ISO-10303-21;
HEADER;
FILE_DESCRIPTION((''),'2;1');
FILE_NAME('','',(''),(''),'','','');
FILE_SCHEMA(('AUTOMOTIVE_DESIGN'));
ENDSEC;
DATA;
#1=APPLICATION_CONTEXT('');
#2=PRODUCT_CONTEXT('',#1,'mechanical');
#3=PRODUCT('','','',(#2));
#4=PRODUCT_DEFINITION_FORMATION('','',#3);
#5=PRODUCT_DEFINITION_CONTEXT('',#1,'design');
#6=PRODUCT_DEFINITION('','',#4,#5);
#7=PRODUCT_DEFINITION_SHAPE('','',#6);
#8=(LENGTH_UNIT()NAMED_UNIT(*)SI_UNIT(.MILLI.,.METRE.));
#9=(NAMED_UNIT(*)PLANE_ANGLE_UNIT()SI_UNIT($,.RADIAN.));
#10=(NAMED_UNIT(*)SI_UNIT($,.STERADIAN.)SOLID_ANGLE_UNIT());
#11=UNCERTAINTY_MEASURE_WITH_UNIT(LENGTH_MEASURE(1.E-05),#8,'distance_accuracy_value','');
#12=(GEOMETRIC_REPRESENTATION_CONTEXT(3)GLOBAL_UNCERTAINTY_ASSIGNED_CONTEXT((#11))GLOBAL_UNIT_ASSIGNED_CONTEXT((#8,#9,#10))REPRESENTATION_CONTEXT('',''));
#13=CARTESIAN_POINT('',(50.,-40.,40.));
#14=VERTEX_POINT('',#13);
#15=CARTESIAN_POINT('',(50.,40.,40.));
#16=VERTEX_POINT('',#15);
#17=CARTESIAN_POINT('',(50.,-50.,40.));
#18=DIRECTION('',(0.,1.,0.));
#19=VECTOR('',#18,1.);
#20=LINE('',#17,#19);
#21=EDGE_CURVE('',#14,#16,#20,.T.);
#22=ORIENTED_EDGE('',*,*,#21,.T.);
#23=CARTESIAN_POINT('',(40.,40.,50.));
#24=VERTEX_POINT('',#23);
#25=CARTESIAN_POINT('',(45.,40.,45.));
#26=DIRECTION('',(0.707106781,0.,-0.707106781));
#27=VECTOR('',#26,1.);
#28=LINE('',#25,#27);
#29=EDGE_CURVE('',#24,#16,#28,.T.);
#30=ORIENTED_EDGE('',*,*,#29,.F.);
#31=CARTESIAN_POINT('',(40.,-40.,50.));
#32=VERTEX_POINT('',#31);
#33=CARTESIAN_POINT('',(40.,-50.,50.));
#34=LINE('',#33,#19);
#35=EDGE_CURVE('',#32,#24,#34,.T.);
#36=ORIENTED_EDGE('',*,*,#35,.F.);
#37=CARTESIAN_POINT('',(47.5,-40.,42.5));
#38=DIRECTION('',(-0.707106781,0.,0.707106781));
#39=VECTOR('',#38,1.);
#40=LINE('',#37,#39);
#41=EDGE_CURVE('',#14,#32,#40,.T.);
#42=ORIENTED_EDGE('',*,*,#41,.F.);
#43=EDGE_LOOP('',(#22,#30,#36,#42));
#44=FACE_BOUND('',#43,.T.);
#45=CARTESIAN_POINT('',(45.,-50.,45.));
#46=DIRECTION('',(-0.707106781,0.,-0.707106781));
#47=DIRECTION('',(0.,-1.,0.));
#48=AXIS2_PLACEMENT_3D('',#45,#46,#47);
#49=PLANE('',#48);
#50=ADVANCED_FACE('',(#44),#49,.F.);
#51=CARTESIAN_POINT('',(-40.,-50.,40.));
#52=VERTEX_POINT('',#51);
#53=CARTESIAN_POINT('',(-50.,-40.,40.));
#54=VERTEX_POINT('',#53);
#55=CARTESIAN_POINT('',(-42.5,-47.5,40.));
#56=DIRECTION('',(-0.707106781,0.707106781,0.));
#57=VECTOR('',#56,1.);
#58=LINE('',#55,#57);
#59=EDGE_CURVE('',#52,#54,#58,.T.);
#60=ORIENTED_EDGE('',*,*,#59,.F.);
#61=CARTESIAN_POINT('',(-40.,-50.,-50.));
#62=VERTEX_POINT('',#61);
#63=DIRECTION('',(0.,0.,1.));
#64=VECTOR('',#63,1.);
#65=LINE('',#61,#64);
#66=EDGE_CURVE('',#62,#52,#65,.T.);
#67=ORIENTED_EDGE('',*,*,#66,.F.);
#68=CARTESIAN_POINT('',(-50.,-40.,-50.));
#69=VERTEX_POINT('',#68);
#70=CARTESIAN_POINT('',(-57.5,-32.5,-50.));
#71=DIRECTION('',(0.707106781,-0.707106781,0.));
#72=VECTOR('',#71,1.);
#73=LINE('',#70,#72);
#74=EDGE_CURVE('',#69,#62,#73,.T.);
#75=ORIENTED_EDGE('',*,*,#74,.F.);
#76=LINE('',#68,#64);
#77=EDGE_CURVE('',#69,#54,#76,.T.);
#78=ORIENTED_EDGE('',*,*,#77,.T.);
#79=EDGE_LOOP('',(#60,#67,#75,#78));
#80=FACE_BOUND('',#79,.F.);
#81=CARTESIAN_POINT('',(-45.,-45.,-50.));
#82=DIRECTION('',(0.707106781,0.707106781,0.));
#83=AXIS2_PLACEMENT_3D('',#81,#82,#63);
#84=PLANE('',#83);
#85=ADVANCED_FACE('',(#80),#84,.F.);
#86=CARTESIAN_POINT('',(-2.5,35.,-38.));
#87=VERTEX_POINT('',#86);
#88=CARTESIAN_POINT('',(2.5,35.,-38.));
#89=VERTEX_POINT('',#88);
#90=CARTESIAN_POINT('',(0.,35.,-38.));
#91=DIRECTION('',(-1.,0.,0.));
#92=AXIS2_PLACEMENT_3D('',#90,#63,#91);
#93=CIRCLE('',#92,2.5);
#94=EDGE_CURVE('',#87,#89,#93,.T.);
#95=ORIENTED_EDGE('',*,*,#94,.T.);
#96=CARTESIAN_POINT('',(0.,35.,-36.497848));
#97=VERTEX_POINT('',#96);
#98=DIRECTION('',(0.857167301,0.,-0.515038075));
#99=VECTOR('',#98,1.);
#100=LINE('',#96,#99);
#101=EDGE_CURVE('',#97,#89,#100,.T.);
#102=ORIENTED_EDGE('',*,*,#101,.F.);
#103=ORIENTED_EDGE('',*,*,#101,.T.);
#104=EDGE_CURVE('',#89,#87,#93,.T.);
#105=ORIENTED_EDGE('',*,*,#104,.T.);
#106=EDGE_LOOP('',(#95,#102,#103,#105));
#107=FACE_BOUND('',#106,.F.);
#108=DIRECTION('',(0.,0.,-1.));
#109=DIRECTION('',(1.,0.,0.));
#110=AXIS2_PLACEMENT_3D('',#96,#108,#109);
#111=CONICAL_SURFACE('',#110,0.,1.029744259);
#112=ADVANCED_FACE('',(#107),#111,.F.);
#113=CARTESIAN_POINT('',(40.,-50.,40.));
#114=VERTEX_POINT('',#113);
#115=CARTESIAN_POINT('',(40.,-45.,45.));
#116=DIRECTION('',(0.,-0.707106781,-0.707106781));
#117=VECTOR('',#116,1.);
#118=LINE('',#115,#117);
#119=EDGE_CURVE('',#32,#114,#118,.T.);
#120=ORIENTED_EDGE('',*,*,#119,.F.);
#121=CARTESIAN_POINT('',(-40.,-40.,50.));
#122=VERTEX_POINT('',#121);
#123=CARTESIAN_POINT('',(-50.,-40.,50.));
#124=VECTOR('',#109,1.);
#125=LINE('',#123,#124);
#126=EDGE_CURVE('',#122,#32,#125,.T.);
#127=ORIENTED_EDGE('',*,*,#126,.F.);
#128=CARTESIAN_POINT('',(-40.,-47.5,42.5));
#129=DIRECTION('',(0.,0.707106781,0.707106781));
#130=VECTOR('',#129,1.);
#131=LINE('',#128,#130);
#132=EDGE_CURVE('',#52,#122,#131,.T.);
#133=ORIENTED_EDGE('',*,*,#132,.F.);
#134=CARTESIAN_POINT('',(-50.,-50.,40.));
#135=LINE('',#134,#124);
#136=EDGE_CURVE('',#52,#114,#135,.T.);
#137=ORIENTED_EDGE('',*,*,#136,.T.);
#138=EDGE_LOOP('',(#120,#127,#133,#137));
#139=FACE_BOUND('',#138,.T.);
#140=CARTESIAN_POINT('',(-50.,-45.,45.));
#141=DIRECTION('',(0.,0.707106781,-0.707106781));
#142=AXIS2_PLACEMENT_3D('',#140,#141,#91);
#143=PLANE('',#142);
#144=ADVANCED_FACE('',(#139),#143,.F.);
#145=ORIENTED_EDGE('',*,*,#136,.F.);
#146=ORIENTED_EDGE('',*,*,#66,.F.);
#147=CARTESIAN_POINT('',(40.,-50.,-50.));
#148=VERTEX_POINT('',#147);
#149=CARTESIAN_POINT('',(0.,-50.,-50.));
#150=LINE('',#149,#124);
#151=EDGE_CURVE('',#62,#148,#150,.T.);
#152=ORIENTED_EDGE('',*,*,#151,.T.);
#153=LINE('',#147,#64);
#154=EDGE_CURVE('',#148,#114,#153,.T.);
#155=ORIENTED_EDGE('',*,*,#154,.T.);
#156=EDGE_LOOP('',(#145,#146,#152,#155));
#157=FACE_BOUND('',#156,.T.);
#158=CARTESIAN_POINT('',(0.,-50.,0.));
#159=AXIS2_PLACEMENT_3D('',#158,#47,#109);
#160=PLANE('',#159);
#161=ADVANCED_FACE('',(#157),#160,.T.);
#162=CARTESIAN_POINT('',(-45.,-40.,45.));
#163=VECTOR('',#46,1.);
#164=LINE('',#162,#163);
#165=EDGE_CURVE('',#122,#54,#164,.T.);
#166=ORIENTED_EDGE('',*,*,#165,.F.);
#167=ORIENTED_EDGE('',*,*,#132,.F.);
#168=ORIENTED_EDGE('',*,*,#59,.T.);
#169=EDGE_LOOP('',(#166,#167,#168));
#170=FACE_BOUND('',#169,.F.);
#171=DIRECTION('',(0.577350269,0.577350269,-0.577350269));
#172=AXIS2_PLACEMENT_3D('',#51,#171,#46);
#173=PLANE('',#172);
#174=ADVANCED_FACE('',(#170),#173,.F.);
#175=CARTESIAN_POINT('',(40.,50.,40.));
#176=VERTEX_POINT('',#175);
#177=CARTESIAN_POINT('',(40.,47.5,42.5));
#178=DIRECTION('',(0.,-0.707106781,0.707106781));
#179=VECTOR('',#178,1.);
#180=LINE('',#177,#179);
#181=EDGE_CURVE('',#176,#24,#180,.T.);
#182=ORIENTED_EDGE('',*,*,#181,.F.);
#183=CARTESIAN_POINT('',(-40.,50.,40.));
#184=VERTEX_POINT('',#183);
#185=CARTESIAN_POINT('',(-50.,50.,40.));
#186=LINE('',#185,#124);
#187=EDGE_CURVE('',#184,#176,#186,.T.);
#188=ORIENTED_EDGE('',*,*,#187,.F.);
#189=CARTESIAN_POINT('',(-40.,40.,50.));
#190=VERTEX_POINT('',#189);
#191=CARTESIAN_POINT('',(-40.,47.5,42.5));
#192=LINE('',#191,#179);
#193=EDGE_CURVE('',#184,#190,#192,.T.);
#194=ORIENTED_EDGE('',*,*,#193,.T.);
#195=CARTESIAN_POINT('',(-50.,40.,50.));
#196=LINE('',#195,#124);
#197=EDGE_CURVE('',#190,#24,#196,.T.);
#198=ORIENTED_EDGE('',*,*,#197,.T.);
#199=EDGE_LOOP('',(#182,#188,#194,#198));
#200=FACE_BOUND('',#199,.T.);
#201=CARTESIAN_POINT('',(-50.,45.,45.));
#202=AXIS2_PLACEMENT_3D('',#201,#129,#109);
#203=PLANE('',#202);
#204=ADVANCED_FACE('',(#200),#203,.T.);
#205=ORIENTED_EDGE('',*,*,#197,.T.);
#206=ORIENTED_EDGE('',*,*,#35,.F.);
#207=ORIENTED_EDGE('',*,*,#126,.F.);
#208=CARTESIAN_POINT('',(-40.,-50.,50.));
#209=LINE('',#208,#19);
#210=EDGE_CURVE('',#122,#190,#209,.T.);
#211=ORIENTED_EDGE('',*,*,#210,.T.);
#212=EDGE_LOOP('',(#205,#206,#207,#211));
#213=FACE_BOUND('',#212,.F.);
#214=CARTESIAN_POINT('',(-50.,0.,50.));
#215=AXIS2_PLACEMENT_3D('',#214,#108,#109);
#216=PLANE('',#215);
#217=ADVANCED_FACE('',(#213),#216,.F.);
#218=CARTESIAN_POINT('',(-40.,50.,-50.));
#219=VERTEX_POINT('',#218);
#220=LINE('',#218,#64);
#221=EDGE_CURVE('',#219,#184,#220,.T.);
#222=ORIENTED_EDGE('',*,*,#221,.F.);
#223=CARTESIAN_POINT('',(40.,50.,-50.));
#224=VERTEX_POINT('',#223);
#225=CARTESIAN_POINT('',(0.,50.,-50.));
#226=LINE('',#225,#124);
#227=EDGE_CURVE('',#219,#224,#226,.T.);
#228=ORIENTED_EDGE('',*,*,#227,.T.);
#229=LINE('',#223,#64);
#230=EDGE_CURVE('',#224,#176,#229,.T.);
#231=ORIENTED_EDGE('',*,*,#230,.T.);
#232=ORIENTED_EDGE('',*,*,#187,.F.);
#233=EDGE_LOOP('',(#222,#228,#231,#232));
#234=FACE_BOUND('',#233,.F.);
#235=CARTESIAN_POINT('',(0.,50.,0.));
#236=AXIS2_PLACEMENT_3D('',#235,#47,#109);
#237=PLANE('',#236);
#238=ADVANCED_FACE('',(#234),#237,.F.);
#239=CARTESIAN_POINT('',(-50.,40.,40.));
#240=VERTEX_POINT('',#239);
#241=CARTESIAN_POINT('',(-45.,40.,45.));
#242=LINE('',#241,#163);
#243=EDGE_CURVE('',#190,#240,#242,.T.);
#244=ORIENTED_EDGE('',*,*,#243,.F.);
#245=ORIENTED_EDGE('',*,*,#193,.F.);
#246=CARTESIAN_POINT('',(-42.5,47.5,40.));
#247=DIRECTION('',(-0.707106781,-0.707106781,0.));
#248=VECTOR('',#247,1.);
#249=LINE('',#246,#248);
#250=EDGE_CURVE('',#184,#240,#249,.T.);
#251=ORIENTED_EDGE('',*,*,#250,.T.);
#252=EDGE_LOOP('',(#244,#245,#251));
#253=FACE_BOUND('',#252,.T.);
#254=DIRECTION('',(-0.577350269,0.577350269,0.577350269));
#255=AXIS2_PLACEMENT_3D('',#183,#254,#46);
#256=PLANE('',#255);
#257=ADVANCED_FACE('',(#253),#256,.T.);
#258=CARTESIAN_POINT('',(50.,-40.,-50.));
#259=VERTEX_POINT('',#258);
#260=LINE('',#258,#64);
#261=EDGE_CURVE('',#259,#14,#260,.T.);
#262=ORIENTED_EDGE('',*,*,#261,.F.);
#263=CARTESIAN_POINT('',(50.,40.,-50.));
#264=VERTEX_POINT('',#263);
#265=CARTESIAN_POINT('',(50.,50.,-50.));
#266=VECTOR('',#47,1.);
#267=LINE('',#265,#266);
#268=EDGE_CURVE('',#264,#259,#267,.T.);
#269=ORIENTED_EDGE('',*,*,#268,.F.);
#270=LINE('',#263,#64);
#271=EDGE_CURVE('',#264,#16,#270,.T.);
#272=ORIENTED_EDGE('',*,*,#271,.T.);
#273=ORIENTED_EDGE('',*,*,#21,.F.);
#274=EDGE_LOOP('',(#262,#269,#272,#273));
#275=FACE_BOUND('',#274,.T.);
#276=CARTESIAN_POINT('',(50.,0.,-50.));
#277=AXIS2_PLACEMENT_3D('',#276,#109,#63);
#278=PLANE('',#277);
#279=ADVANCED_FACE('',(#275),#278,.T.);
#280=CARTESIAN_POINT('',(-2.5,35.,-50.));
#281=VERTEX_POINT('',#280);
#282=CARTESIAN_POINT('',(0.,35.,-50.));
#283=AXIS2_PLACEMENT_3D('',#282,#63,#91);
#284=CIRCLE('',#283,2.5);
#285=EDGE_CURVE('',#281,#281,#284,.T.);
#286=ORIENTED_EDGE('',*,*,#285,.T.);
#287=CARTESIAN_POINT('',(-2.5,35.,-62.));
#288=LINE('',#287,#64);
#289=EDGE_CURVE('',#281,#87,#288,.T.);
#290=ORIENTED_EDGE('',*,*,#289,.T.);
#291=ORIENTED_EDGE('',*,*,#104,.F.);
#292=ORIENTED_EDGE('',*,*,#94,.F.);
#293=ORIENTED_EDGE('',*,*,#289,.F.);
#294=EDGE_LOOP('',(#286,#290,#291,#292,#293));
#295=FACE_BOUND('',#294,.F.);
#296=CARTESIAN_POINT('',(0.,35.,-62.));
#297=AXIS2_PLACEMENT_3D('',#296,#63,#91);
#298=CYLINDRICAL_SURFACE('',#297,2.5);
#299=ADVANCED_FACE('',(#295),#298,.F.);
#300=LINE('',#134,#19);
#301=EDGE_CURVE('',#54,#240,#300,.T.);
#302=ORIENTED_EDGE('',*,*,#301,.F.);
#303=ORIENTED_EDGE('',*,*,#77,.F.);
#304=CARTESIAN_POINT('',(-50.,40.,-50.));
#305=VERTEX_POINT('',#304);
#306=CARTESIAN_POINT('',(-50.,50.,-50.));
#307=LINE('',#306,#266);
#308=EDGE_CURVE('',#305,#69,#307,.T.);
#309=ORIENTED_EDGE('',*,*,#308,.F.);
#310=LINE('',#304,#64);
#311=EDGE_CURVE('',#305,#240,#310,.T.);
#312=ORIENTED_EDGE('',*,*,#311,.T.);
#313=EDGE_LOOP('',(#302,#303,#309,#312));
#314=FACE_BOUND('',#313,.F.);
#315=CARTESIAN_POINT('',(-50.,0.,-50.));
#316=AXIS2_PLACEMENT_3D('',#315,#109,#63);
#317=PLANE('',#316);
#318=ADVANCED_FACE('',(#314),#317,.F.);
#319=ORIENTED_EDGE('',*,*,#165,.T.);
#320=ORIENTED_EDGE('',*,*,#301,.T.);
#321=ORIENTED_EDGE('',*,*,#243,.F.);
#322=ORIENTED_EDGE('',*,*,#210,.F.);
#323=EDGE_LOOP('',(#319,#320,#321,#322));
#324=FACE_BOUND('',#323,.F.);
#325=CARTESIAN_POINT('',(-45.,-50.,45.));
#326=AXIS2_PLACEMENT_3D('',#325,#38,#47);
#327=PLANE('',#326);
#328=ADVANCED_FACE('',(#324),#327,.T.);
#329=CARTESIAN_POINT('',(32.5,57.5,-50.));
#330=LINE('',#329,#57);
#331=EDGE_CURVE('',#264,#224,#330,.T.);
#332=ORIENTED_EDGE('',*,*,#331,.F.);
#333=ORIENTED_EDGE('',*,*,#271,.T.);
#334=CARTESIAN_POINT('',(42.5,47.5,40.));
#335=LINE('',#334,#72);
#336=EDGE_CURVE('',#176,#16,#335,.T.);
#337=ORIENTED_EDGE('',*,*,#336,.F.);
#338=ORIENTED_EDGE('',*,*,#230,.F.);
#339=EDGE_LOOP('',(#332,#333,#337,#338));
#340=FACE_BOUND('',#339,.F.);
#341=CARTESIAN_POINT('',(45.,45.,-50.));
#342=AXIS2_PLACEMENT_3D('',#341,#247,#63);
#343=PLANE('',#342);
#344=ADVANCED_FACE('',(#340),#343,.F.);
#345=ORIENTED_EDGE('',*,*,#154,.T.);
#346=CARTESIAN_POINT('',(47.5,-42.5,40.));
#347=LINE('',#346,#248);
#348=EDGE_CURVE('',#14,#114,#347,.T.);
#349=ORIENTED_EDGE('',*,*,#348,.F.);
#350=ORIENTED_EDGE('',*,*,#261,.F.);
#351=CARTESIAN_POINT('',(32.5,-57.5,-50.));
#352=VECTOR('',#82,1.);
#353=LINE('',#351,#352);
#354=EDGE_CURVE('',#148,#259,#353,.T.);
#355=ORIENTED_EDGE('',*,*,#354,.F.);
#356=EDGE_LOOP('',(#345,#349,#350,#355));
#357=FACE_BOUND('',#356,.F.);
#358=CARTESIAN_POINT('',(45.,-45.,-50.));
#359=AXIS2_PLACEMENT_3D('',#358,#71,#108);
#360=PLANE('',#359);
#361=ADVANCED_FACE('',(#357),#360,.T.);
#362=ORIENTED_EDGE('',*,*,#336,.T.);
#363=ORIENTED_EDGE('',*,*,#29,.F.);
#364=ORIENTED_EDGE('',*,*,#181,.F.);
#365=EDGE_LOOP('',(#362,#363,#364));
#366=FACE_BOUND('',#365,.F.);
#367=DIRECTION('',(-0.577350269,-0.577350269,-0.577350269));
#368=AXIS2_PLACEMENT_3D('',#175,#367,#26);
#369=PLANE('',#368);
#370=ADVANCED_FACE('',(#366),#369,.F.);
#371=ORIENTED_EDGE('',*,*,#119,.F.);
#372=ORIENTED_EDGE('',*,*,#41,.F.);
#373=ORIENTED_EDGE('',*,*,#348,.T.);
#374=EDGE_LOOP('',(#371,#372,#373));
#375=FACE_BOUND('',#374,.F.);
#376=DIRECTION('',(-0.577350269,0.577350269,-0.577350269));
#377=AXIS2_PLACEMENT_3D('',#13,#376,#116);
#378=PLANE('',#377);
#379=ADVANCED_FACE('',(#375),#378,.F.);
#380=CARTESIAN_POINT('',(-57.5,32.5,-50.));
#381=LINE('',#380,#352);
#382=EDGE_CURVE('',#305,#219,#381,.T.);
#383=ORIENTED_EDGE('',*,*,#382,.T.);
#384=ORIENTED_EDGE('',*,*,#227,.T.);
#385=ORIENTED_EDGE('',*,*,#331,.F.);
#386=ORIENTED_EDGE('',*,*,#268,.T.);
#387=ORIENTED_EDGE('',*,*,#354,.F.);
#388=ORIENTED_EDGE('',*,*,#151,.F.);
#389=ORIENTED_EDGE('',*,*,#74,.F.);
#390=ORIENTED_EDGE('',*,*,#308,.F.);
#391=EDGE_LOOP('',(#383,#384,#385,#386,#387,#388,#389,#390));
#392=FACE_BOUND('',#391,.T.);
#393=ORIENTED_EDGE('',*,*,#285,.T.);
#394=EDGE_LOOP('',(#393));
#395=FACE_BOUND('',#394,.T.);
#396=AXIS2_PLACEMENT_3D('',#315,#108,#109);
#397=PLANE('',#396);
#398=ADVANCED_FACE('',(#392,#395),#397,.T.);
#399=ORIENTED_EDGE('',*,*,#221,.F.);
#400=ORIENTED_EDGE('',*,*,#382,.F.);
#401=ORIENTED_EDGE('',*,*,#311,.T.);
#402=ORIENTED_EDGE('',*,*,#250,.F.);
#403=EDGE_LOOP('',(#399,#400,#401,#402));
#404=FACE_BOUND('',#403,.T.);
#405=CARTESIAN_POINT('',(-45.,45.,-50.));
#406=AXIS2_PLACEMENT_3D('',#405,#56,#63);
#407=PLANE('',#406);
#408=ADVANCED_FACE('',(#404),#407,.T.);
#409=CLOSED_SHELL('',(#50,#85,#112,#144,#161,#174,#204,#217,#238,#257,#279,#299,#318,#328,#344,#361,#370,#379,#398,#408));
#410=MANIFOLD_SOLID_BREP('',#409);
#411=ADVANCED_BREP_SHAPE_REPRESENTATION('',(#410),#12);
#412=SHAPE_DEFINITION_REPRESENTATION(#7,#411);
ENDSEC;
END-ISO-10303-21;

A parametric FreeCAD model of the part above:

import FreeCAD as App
import Part
import Sketcher
from FreeCAD import Vector


def edges_at(feature, points):
    """Names of the edges that pass closest to the given points."""
    edges = feature.Shape.Edges
    near = lambda p: min(range(len(edges)), key=lambda i: edges[i].distToShape(Part.Vertex(*p))[0])
    return sorted({f"Edge{near(p) + 1}" for p in points})

doc = App.newDocument("Part")
params = doc.addObject("Spreadsheet::Sheet", "Params")
for row, (alias, value) in enumerate([
    ("sketch1_width", "100 mm"),
    ("pad1_length", "100 mm"),
    ("chamfer_size", "10 mm"),
    ("sketch2_diameter", "5 mm"),
    ("hole_diameter", "5 mm"),
    ("hole_depth", "12 mm"),
], start=1):
    params.set(f"A{row}", alias)
    params.set(f"B{row}", "=" + value)
    params.setAlias(f"B{row}", alias)

body = doc.addObject("PartDesign::Body", "Body")

# Sketch on XZ plane
sketch1 = body.newObject("Sketcher::SketchObject", "Sketch")
sketch1.AttachmentSupport = (doc.getObject("XZ_Plane"), [""])
sketch1.MapMode = "FlatFace"
sketch1.addGeometry(Part.LineSegment(Vector(-50, 50, 0), Vector(-50, -50, 0)), False)
sketch1.addGeometry(Part.LineSegment(Vector(-50, -50, 0), Vector(50, -50, 0)), False)
sketch1.addGeometry(Part.LineSegment(Vector(50, -50, 0), Vector(50, 50, 0)), False)
sketch1.addGeometry(Part.LineSegment(Vector(50, 50, 0), Vector(-50, 50, 0)), False)
sketch1.addConstraint(Sketcher.Constraint("Coincident", 0, 2, 1, 1))
sketch1.addConstraint(Sketcher.Constraint("Coincident", 1, 2, 2, 1))
sketch1.addConstraint(Sketcher.Constraint("Coincident", 2, 2, 3, 1))
sketch1.addConstraint(Sketcher.Constraint("Coincident", 3, 2, 0, 1))
sketch1.addConstraint(Sketcher.Constraint("Vertical", 0))
sketch1.addConstraint(Sketcher.Constraint("Horizontal", 1))
sketch1.addConstraint(Sketcher.Constraint("Vertical", 2))
sketch1.addConstraint(Sketcher.Constraint("Horizontal", 3))
sketch1.addConstraint(Sketcher.Constraint("Symmetric", 0, 2, 2, 2, -1, 1))
sketch1.addConstraint(Sketcher.Constraint("Equal", 3, 0))
sketch1.addConstraint(Sketcher.Constraint("DistanceX", 1, 1, 1, 2, 100.0))
sketch1.setExpression("Constraints[10]", "Params.sketch1_width")
pad1 = body.newObject("PartDesign::Pad", "Pad")
pad1.Profile = sketch1
pad1.setExpression("Length", "Params.pad1_length")
pad1.Midplane = True
doc.recompute()

chamfer = body.newObject("PartDesign::Chamfer", "Chamfer")
chamfer.Base = (pad1, edges_at(pad1, [
    (-50, 0, 50),
    (0, -50, 50),
    (50, 0, 50),
    (0, 50, 50),
    (50, -50, 0),
    (50, 50, 0),
    (-50, 50, 0),
    (-50, -50, 0),
]))
chamfer.setExpression("Size", "Params.chamfer_size")

# Sketch on XY plane
sketch2 = body.newObject("Sketcher::SketchObject", "Sketch001")
sketch2.AttachmentSupport = (doc.getObject("XY_Plane"), [""])
sketch2.MapMode = "FlatFace"
sketch2.AttachmentOffset = App.Placement(Vector(0, 0, -50), App.Rotation())
sketch2.addGeometry(Part.Circle(Vector(0, 35, 0), Vector(0, 0, 1), 2.5), False)
sketch2.addConstraint(Sketcher.Constraint("PointOnObject", 0, 3, -2))
sketch2.addConstraint(Sketcher.Constraint("Diameter", 0, 5.0))
sketch2.addConstraint(Sketcher.Constraint("DistanceY", -1, 1, 0, 3, 35.0))
sketch2.setExpression("Constraints[1]", "Params.sketch2_diameter")
doc.recompute()
hole = body.newObject("PartDesign::Hole", "Hole")
hole.Profile = sketch2
hole.ThreadType = "None"
hole.setExpression("Diameter", "Params.hole_diameter")
hole.DepthType = "Dimension"
hole.setExpression("Depth", "Params.hole_depth")
hole.DrillPoint = "Angled"
hole.DrillPointAngle = 118
hole.Reversed = True

doc.recompute()
